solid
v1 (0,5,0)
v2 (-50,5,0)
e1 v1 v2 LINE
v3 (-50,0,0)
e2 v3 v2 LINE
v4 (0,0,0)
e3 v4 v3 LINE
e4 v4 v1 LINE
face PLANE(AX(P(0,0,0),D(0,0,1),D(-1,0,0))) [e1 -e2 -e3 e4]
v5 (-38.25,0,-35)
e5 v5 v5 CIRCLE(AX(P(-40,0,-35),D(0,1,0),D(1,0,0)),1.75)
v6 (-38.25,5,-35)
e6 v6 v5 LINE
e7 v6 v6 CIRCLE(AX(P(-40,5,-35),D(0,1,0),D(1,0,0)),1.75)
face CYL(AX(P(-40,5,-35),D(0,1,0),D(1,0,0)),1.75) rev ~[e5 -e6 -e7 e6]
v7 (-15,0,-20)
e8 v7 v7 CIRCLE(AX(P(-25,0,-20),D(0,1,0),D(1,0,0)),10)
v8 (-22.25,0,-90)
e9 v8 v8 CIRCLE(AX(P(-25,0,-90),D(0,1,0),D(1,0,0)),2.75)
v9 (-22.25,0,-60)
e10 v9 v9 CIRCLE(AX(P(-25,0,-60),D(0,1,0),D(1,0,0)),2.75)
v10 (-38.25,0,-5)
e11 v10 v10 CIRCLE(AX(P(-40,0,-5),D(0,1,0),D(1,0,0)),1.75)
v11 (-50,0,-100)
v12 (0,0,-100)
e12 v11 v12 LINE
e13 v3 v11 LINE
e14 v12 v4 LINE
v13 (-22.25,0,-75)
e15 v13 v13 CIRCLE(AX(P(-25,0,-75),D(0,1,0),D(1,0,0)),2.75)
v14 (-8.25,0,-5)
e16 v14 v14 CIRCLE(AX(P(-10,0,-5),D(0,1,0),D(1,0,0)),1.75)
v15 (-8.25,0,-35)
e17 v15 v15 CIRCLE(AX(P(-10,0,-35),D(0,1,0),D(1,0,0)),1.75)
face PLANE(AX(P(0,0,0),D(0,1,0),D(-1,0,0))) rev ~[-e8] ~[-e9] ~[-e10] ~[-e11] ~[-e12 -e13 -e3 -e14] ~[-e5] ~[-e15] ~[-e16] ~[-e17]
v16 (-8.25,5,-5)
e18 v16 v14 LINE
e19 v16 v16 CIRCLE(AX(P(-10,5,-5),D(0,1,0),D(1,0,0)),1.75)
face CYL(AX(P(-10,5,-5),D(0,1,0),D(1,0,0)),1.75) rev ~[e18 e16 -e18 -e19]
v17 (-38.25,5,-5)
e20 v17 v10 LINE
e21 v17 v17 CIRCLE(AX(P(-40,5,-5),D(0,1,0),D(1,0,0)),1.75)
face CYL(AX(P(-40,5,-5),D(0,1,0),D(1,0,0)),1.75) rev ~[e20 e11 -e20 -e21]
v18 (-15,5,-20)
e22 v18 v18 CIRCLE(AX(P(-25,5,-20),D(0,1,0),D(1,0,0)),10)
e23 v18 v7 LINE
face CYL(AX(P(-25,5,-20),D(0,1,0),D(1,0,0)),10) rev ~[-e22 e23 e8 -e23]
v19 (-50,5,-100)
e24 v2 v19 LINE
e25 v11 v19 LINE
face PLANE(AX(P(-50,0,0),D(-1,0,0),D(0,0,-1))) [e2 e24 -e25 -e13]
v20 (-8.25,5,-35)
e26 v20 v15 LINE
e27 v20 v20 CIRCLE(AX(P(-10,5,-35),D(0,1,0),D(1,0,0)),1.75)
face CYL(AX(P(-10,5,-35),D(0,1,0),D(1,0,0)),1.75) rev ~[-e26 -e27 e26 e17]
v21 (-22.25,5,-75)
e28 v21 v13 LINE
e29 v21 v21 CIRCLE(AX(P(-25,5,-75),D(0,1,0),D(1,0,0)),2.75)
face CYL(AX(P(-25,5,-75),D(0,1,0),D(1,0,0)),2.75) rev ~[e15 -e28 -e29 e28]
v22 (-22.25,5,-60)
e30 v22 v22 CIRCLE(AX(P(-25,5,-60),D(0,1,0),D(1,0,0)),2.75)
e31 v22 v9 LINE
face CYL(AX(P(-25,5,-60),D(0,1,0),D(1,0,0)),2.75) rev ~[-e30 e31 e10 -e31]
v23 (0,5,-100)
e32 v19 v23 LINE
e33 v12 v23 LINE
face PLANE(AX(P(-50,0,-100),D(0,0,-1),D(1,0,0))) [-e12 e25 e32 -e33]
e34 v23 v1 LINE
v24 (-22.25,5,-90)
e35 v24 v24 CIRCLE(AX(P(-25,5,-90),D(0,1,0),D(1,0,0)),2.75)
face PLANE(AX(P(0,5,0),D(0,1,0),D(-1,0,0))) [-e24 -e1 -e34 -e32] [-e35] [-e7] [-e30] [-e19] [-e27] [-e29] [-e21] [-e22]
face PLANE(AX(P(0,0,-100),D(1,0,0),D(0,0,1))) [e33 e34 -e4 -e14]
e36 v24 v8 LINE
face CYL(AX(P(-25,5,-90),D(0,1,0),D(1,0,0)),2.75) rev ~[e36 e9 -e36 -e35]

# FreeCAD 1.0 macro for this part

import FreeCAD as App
import Part
import Sketcher
from FreeCAD import Vector
Q = App.Units.Quantity

doc = App.newDocument("Part")
body = doc.addObject("PartDesign::Body", "Body")

sketch1 = doc.addObject("Sketcher::SketchObject", "Sketch")
body.addObject(sketch1)
sketch1.AttachmentSupport = (doc.XZ_Plane, [""])
sketch1.MapMode = "FlatFace"
sketch1.addGeometry(Part.LineSegment(Vector(-50, 0, 0), Vector(0, 0, 0)), False)
sketch1.addGeometry(Part.LineSegment(Vector(0, 0, 0), Vector(0, -100, 0)), False)
sketch1.addGeometry(Part.LineSegment(Vector(0, -100, 0), Vector(-50, -100, 0)), False)
sketch1.addGeometry(Part.LineSegment(Vector(-50, -100, 0), Vector(-50, 0, 0)), False)
sketch1.addConstraint(Sketcher.Constraint("Coincident", 0, 2, 1, 1))
sketch1.addConstraint(Sketcher.Constraint("Coincident", 1, 2, 2, 1))
sketch1.addConstraint(Sketcher.Constraint("Coincident", 2, 2, 3, 1))
sketch1.addConstraint(Sketcher.Constraint("Coincident", 3, 2, 0, 1))
sketch1.addConstraint(Sketcher.Constraint("Horizontal", 0))
sketch1.addConstraint(Sketcher.Constraint("Vertical", 1))
sketch1.addConstraint(Sketcher.Constraint("Horizontal", 2))
sketch1.addConstraint(Sketcher.Constraint("Vertical", 3))
sketch1.addConstraint(Sketcher.Constraint("Coincident", 0, 2, -1, 1))
sketch1.addConstraint(Sketcher.Constraint("DistanceX", 0, 1, 0, 2, Q("50 mm")))
sketch1.addConstraint(Sketcher.Constraint("DistanceY", 1, 2, 1, 1, Q("100 mm")))
pad1 = doc.addObject("PartDesign::Pad", "Pad")
body.addObject(pad1)
pad1.Profile = sketch1
pad1.Length = 5
pad1.Reversed = True

sketch2 = doc.addObject("Sketcher::SketchObject", "Sketch001")
body.addObject(sketch2)
sketch2.AttachmentSupport = (doc.XZ_Plane, [""])
sketch2.MapMode = "FlatFace"
sketch2.AttachmentOffset = App.Placement(Vector(0, 0, -5), App.Rotation())
sketch2.addGeometry(Part.Circle(Vector(-25, -90, 0), Vector(0, 0, 1), 2.8), False)
sketch2.addGeometry(Part.Circle(Vector(-25, -75, 0), Vector(0, 0, 1), 2.8), False)
sketch2.addGeometry(Part.Circle(Vector(-25, -60, 0), Vector(0, 0, 1), 2.8), False)
sketch2.addGeometry(Part.Circle(Vector(-40, -5, 0), Vector(0, 0, 1), 1.8), False)
sketch2.addGeometry(Part.Circle(Vector(-40, -35, 0), Vector(0, 0, 1), 1.8), False)
sketch2.addGeometry(Part.Circle(Vector(-10, -5, 0), Vector(0, 0, 1), 1.8), False)
sketch2.addGeometry(Part.Circle(Vector(-10, -35, 0), Vector(0, 0, 1), 1.8), False)
sketch2.addGeometry(Part.Circle(Vector(-25, -20, 0), Vector(0, 0, 1), 10), False)
sketch2.addConstraint(Sketcher.Constraint("Equal", 0, 1))
sketch2.addConstraint(Sketcher.Constraint("Equal", 1, 2))
sketch2.addConstraint(Sketcher.Constraint("Equal", 3, 4))
sketch2.addConstraint(Sketcher.Constraint("Equal", 4, 5))
sketch2.addConstraint(Sketcher.Constraint("Equal", 5, 6))
sketch2.addConstraint(Sketcher.Constraint("Horizontal", 3, 3, 5, 3))
sketch2.addConstraint(Sketcher.Constraint("Horizontal", 4, 3, 6, 3))
sketch2.addConstraint(Sketcher.Constraint("Vertical", 0, 3, 1, 3))
sketch2.addConstraint(Sketcher.Constraint("Vertical", 1, 3, 2, 3))
sketch2.addConstraint(Sketcher.Constraint("Vertical", 3, 3, 4, 3))
sketch2.addConstraint(Sketcher.Constraint("Vertical", 5, 3, 6, 3))
sketch2.addConstraint(Sketcher.Constraint("Vertical", 2, 3, 7, 3))
sketch2.addConstraint(Sketcher.Constraint("Diameter", 7, Q("20 mm")))
sketch2.addConstraint(Sketcher.Constraint("Diameter", 0, Q("5.5 mm")))
sketch2.addConstraint(Sketcher.Constraint("Diameter", 3, Q("3.5 mm")))
sketch2.addConstraint(Sketcher.Constraint("DistanceX", 0, 3, -1, 1, Q("25 mm")))
sketch2.addConstraint(Sketcher.Constraint("DistanceY", 3, 3, -1, 1, Q("5 mm")))
sketch2.addConstraint(Sketcher.Constraint("DistanceX", 5, 3, -1, 1, Q("10 mm")))
sketch2.addConstraint(Sketcher.Constraint("DistanceY", 7, 3, -1, 1, Q("20 mm")))
sketch2.addConstraint(Sketcher.Constraint("DistanceY", 0, 3, 1, 3, Q("15 mm")))
sketch2.addConstraint(Sketcher.Constraint("DistanceY", 1, 3, 2, 3, Q("15 mm")))
sketch2.addConstraint(Sketcher.Constraint("DistanceX", 3, 3, 2, 3, Q("15 mm")))
sketch2.addConstraint(Sketcher.Constraint("DistanceY", 2, 3, 4, 3, Q("25 mm")))
sketch2.addConstraint(Sketcher.Constraint("DistanceY", 4, 3, 3, 3, Q("30 mm")))
pocket1 = doc.addObject("PartDesign::Pocket", "Pocket")
body.addObject(pocket1)
pocket1.Profile = sketch2
pocket1.Length = 5
pocket1.Reversed = True

doc.recompute()
